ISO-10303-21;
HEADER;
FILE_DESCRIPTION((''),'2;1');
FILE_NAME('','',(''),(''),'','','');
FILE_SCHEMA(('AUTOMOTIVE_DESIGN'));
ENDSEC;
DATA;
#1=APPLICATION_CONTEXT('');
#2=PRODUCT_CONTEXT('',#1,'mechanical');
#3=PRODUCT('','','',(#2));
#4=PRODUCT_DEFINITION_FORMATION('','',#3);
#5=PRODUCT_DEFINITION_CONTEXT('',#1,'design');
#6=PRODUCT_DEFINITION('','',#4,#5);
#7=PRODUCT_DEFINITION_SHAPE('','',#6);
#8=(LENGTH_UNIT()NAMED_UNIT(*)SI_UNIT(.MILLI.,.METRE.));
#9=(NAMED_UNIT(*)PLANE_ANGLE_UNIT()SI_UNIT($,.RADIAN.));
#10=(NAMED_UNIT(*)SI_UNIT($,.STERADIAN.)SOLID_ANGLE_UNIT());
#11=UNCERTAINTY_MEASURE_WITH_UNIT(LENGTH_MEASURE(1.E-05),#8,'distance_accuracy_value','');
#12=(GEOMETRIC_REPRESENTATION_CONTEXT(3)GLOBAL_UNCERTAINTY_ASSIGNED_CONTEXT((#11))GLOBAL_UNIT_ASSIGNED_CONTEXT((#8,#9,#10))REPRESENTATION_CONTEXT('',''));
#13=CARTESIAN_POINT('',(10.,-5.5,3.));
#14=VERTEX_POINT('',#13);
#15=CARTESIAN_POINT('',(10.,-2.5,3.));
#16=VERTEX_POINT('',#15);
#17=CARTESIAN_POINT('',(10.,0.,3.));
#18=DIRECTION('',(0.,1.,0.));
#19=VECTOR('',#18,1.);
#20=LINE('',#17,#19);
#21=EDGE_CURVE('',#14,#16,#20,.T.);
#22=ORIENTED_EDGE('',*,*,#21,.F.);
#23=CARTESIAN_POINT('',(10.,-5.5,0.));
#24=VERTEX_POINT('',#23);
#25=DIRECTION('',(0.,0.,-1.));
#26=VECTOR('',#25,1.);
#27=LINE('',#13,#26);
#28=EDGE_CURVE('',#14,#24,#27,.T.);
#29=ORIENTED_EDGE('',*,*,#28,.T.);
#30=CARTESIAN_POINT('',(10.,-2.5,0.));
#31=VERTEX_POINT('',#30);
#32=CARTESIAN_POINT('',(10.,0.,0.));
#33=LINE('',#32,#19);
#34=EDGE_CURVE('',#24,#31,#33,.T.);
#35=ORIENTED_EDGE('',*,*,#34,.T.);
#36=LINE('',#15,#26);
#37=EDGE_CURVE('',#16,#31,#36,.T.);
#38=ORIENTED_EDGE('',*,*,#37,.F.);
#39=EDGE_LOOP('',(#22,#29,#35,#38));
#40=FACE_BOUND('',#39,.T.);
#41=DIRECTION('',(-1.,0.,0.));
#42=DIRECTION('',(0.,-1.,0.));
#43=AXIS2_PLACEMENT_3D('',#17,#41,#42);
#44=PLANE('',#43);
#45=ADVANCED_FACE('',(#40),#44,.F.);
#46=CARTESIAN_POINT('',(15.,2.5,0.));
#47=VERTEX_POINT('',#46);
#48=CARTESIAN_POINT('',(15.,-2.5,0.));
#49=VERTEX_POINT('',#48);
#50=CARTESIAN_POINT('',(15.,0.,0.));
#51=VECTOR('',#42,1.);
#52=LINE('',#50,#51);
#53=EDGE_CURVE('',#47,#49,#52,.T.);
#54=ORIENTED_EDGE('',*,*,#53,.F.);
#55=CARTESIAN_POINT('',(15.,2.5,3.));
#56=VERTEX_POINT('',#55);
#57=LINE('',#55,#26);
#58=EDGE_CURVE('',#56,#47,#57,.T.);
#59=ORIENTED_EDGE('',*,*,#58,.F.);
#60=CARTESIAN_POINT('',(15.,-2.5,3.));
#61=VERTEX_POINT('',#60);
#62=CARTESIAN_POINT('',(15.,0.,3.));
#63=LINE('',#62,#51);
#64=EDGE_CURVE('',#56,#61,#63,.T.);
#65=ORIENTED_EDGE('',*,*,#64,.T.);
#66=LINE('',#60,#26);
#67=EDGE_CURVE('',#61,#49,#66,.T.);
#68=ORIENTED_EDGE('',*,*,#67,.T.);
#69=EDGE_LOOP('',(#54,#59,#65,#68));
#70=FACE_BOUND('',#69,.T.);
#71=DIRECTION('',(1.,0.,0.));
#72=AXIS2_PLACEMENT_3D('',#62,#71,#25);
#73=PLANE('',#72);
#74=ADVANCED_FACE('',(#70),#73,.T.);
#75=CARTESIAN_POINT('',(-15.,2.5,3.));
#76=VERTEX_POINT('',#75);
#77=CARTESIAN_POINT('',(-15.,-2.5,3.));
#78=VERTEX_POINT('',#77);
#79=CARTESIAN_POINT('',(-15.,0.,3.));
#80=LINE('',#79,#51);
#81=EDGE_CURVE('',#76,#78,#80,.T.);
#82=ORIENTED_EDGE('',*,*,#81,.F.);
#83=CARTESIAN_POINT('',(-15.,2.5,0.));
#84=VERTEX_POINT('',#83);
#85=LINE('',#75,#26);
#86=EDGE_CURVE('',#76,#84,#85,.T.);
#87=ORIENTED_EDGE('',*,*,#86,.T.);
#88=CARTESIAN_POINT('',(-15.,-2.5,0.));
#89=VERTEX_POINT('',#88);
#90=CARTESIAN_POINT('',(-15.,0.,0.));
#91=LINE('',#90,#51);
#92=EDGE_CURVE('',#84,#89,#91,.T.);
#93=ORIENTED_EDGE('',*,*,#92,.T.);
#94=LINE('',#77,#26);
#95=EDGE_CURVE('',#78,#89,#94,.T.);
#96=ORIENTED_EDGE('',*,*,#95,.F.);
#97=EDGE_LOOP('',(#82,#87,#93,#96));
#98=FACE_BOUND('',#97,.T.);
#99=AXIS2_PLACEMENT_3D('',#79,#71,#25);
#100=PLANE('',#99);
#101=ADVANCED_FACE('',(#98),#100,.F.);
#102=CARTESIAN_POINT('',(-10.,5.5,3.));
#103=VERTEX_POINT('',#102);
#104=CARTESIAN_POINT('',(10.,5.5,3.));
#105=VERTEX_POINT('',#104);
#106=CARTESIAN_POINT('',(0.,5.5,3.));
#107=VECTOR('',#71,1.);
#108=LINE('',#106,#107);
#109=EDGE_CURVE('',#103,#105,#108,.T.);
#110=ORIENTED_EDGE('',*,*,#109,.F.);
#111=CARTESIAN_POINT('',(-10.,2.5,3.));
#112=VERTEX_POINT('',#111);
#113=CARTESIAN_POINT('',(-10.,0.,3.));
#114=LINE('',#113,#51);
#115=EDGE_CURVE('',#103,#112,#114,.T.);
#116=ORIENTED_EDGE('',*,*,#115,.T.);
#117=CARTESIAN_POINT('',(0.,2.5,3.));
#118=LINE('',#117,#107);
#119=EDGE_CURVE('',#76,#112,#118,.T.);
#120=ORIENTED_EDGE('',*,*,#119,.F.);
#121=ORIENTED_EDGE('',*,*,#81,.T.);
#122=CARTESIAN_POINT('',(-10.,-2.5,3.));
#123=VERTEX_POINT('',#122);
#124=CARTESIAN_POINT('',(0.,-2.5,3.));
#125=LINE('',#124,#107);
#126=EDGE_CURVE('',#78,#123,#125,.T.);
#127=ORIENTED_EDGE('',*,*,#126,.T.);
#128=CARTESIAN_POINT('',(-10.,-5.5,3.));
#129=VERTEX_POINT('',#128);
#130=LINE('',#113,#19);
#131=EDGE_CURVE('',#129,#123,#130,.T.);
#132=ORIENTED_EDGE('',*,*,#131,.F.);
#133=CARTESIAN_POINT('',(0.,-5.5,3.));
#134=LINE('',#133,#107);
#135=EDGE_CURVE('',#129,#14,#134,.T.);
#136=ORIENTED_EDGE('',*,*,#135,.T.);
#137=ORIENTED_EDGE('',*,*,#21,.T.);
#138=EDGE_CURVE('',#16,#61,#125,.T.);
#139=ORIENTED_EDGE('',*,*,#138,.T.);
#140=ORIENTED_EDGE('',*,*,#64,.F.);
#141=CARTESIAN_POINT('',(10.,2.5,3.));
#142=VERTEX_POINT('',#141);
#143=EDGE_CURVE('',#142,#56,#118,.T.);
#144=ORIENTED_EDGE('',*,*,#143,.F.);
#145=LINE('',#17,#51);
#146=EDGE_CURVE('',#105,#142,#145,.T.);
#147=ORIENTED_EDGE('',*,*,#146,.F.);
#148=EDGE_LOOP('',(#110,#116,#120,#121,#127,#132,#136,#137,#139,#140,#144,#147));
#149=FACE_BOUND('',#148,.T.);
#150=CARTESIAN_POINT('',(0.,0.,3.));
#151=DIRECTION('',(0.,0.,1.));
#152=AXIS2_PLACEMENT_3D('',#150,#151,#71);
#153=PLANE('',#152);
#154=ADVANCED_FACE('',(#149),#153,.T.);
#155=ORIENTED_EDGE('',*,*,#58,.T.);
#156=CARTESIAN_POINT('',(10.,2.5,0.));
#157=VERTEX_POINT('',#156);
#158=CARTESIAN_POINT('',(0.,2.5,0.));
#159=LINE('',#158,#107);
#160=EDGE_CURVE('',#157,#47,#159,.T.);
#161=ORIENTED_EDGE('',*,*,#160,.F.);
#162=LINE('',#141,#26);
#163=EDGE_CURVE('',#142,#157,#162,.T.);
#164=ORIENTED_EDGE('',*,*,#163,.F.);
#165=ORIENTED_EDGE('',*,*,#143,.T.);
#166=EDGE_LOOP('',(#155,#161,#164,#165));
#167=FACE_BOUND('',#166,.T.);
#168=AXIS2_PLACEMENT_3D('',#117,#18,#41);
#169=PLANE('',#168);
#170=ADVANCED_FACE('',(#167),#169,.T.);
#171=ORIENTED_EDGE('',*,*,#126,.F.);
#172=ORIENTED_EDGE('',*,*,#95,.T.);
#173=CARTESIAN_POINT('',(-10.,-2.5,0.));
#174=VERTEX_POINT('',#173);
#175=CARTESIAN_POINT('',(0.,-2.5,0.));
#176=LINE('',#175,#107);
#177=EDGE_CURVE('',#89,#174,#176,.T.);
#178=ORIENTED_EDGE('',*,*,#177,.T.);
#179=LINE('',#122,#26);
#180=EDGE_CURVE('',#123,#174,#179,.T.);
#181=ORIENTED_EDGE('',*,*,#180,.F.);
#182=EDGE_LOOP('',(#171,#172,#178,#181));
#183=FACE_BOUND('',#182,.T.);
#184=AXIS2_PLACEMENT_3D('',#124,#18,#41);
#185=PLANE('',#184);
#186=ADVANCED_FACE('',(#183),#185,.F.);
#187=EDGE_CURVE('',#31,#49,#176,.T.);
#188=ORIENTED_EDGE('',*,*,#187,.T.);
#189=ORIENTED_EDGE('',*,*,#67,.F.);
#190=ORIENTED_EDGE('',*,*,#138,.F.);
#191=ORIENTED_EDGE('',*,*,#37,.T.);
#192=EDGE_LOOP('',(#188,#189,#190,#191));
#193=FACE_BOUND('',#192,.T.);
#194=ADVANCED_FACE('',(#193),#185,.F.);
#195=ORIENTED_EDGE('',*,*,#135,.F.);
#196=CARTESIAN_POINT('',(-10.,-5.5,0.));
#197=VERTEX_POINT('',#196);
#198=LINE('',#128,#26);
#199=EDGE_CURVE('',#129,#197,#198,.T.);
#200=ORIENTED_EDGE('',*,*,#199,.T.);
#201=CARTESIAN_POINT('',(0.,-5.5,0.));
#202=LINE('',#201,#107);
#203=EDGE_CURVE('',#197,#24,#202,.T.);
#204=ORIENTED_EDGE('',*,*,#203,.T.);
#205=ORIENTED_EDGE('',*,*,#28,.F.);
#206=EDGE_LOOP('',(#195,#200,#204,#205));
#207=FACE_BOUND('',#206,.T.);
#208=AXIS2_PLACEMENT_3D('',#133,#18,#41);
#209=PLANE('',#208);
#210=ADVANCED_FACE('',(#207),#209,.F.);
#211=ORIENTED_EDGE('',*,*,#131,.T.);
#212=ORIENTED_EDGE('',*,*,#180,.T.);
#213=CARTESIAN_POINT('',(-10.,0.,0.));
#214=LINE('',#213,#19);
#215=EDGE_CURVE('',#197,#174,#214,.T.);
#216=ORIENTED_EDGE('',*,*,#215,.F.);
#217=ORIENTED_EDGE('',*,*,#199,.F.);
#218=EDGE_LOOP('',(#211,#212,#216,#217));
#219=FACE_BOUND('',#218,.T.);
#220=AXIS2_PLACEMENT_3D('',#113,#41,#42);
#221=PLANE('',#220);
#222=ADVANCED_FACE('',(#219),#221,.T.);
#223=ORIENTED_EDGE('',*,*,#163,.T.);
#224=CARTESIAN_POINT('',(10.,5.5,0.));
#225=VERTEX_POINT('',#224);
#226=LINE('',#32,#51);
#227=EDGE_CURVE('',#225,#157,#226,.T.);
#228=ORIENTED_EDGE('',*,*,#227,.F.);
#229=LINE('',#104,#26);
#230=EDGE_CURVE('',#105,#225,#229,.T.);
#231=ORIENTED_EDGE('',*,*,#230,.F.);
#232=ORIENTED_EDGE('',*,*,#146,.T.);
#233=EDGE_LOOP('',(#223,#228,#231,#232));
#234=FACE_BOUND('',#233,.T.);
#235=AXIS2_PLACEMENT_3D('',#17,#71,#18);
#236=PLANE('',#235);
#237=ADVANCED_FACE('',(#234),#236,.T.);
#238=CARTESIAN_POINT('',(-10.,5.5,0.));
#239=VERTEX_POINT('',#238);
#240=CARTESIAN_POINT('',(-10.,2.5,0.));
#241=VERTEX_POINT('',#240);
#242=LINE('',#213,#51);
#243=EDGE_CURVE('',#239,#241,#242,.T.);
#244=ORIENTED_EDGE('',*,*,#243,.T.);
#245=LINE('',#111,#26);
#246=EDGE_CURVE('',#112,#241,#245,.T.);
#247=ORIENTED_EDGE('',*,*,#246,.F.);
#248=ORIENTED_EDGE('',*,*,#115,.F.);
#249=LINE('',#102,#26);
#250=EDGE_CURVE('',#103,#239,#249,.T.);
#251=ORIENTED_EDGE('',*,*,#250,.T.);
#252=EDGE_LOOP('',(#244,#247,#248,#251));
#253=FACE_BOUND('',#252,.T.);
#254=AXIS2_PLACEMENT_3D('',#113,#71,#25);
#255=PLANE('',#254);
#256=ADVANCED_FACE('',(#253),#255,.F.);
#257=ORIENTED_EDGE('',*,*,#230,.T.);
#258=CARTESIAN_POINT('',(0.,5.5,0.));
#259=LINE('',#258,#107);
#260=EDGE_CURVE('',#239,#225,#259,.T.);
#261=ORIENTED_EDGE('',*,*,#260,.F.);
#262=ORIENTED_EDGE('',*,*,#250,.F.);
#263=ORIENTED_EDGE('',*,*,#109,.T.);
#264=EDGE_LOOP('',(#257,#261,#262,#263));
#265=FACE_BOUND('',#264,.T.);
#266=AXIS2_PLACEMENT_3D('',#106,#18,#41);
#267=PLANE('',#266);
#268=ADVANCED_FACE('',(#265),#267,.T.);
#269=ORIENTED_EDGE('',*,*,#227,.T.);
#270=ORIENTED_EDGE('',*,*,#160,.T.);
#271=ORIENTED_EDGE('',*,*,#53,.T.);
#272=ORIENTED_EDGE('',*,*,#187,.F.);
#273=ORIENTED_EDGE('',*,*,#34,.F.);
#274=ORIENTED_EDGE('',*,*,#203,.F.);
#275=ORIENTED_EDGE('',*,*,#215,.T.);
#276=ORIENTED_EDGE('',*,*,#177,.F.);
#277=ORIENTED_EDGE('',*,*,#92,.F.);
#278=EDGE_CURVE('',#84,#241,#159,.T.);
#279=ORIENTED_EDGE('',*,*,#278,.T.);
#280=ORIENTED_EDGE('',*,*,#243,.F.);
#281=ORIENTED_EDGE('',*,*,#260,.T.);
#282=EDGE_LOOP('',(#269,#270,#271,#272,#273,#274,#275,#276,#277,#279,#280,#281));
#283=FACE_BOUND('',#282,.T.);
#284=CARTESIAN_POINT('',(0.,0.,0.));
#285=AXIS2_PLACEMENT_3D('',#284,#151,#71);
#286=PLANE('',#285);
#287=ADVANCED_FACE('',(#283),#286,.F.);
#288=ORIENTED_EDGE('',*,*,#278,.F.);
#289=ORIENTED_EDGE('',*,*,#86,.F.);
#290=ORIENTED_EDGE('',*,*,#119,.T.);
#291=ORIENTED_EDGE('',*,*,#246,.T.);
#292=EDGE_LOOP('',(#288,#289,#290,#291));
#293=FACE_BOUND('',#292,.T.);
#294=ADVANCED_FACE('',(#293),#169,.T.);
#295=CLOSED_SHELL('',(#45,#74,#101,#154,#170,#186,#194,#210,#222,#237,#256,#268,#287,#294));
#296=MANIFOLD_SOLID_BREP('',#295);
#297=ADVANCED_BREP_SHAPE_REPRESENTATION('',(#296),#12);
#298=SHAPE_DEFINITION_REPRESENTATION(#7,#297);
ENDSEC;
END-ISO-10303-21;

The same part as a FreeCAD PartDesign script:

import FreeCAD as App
import Part
import Sketcher


def add_polygon(sketch, points):
    """Adds a closed chain of lines whose ends are joined by coincident constraints."""
    first, n = sketch.GeometryCount, len(points)
    for a, b in zip(points, points[1:] + points[:1]):
        sketch.addGeometry(Part.LineSegment(App.Vector(*a, 0), App.Vector(*b, 0)), False)
    for i in range(n):
        sketch.addConstraint(Sketcher.Constraint("Coincident", first + i, 2, first + (i + 1) % n, 1))

doc = App.newDocument("Part")
body = doc.addObject("PartDesign::Body", "Body")

sketch1 = doc.addObject("Sketcher::SketchObject", "Sketch")
body.addObject(sketch1)
sketch1.AttachmentSupport = (doc.XY_Plane, [""])
sketch1.MapMode = "FlatFace"
add_polygon(sketch1, [(-10, 5.5), (-10, 2.5), (-15, 2.5), (-15, -2.5), (-10, -2.5), (-10, -5.5), (10, -5.5), (10, -2.5), (15, -2.5), (15, 2.5), (10, 2.5), (10, 5.5)])
sketch1.addConstraint(Sketcher.Constraint("Vertical", 0))
sketch1.addConstraint(Sketcher.Constraint("Horizontal", 1))
sketch1.addConstraint(Sketcher.Constraint("Vertical", 2))
sketch1.addConstraint(Sketcher.Constraint("Horizontal", 3))
sketch1.addConstraint(Sketcher.Constraint("Vertical", 4))
sketch1.addConstraint(Sketcher.Constraint("Horizontal", 5))
sketch1.addConstraint(Sketcher.Constraint("Vertical", 6))
sketch1.addConstraint(Sketcher.Constraint("Horizontal", 7))
sketch1.addConstraint(Sketcher.Constraint("Vertical", 8))
sketch1.addConstraint(Sketcher.Constraint("Horizontal", 9))
sketch1.addConstraint(Sketcher.Constraint("Vertical", 10))
sketch1.addConstraint(Sketcher.Constraint("Horizontal", 11))
sketch1.addConstraint(Sketcher.Constraint("Symmetric", 0, 2, 6, 2, -1, 1))
sketch1.addConstraint(Sketcher.Constraint("Symmetric", 2, 2, 8, 2, -1, 1))
sketch1.addConstraint(Sketcher.Constraint("Symmetric", 4, 2, 10, 2, -1, 1))
sketch1.addConstraint(Sketcher.Constraint("Symmetric", 3, 2, 6, 2, -2))
sketch1.addConstraint(Sketcher.Constraint("Equal", 9, 2))
sketch1.addConstraint(Sketcher.Constraint("DistanceX", 1, 2, 1, 1, 5.0))
sketch1.addConstraint(Sketcher.Constraint("DistanceX", 5, 1, 5, 2, 20.0))
sketch1.addConstraint(Sketcher.Constraint("DistanceY", 0, 2, 0, 1, 3.0))
pad1 = doc.addObject("PartDesign::Pad", "Pad")
body.addObject(pad1)
pad1.Profile = sketch1
pad1.Length = 3

doc.recompute()
